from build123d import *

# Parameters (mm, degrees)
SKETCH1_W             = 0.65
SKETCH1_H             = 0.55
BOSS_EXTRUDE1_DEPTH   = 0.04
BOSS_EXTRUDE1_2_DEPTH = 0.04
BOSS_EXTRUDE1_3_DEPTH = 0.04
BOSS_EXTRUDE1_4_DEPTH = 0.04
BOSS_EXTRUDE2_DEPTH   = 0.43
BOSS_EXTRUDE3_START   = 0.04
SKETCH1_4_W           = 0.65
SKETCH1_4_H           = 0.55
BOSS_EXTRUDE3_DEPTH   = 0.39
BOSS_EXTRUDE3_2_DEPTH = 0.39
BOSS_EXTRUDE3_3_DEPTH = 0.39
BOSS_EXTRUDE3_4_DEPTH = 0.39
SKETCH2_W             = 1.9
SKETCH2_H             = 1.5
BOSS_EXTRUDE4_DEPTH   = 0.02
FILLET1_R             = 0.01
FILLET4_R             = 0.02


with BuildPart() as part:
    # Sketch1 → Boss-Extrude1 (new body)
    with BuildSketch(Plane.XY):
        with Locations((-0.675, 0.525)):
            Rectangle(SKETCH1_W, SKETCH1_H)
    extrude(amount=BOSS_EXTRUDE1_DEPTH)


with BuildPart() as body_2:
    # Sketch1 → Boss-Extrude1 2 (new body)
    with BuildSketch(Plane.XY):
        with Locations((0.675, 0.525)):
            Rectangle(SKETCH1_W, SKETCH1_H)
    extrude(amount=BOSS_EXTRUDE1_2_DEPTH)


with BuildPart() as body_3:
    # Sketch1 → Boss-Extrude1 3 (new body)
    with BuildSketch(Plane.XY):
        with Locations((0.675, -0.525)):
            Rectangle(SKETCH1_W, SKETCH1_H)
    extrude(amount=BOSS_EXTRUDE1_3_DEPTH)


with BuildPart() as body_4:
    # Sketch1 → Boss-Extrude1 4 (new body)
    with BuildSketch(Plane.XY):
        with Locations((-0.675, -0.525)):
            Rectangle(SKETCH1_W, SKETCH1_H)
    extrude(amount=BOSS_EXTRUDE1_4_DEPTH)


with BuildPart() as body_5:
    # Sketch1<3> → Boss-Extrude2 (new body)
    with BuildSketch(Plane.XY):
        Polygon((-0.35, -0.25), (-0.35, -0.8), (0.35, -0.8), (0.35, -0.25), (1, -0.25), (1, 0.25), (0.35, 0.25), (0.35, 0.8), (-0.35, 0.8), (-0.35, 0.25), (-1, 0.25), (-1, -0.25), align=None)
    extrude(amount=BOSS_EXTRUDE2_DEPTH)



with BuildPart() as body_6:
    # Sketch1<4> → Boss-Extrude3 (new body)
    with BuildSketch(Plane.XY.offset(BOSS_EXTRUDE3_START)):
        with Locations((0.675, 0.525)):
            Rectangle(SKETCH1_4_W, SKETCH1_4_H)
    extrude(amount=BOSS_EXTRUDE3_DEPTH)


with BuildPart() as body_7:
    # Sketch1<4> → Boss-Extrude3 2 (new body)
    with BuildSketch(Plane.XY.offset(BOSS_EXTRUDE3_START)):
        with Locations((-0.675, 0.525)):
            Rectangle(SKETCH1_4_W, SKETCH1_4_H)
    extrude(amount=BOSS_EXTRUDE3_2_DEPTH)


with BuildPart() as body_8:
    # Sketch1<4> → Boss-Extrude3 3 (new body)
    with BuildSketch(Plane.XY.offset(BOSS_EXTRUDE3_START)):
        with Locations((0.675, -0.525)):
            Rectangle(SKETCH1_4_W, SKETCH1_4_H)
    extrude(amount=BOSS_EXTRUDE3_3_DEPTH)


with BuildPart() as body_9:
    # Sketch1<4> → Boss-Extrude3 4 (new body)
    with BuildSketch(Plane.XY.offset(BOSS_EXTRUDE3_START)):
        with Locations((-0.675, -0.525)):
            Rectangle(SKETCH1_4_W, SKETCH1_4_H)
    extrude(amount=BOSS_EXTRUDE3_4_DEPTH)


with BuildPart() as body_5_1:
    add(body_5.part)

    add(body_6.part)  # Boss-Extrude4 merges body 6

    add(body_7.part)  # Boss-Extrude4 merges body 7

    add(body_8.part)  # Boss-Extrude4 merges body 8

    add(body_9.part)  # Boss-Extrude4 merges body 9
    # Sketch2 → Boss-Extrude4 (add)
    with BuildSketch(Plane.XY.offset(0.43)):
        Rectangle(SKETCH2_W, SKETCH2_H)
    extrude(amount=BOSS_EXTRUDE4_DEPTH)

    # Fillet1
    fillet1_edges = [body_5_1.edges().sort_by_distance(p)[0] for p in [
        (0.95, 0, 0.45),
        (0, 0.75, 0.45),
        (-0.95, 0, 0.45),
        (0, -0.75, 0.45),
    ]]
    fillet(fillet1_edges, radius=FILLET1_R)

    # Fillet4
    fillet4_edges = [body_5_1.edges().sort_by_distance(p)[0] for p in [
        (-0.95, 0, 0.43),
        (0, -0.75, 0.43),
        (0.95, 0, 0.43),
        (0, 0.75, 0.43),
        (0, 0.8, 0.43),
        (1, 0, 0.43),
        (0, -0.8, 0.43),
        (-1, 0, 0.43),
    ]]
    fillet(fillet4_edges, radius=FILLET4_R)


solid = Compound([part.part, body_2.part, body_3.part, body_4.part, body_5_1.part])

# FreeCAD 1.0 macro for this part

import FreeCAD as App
import Part
import Sketcher

V = App.Vector
Q = App.Units.Quantity


def edges_at(feature, points):
    """Names of the edges that pass closest to the given points."""
    edges = feature.Shape.Edges
    near = lambda p: min(range(len(edges)), key=lambda i: edges[i].distToShape(Part.Vertex(*p))[0])
    return sorted({f"Edge{near(p) + 1}" for p in points})

doc = App.newDocument("Part")
body = doc.addObject("PartDesign::Body", "Body")

# Sketch on XY plane
sketch1 = body.newObject("Sketcher::SketchObject", "Sketch")
sketch1.AttachmentSupport = (doc.getObject("XY_Plane"), [""])
sketch1.MapMode = "FlatFace"
sketch1.addGeometry([
    Part.LineSegment(V(-1, 0.8, 0), V(-1, 0.2, 0)),
    Part.LineSegment(V(-1, 0.2, 0), V(-0.3, 0.2, 0)),
    Part.LineSegment(V(-0.3, 0.2, 0), V(-0.3, 0.8, 0)),
    Part.LineSegment(V(-0.3, 0.8, 0), V(-1, 0.8, 0)),
], False)
sketch1.addConstraint([
    Sketcher.Constraint("Coincident", 0, 2, 1, 1),
    Sketcher.Constraint("Coincident", 1, 2, 2, 1),
    Sketcher.Constraint("Coincident", 2, 2, 3, 1),
    Sketcher.Constraint("Coincident", 3, 2, 0, 1),
    Sketcher.Constraint("Vertical", 0),
    Sketcher.Constraint("Horizontal", 1),
    Sketcher.Constraint("Vertical", 2),
    Sketcher.Constraint("Horizontal", 3),
    Sketcher.Constraint("DistanceX", 0, 2, -1, 1, Q("1 mm")),
    Sketcher.Constraint("DistanceX", 1, 1, 1, 2, Q("0.65 mm")),
    Sketcher.Constraint("DistanceY", 0, 2, 0, 1, Q("0.55 mm")),
    Sketcher.Constraint("DistanceY", -1, 1, 2, 2, Q("0.8 mm")),
])
pad1 = body.newObject("PartDesign::Pad", "Pad")
pad1.Profile = sketch1
pad1.Length = 0.04
body2 = doc.addObject("PartDesign::Body", "Body001")

# Sketch on XY plane
sketch2 = body2.newObject("Sketcher::SketchObject", "Sketch001")
sketch2.AttachmentSupport = (doc.getObject("XY_Plane001"), [""])
sketch2.MapMode = "FlatFace"
sketch2.addGeometry([
    Part.LineSegment(V(0.3, 0.8, 0), V(0.3, 0.2, 0)),
    Part.LineSegment(V(0.3, 0.2, 0), V(1, 0.2, 0)),
    Part.LineSegment(V(1, 0.2, 0), V(1, 0.8, 0)),
    Part.LineSegment(V(1, 0.8, 0), V(0.3, 0.8, 0)),
], False)
sketch2.addConstraint([
    Sketcher.Constraint("Coincident", 0, 2, 1, 1),
    Sketcher.Constraint("Coincident", 1, 2, 2, 1),
    Sketcher.Constraint("Coincident", 2, 2, 3, 1),
    Sketcher.Constraint("Coincident", 3, 2, 0, 1),
    Sketcher.Constraint("Vertical", 0),
    Sketcher.Constraint("Horizontal", 1),
    Sketcher.Constraint("Vertical", 2),
    Sketcher.Constraint("Horizontal", 3),
    Sketcher.Constraint("DistanceX", -1, 1, 1, 2, Q("1 mm")),
    Sketcher.Constraint("DistanceX", 1, 1, 1, 2, Q("0.65 mm")),
    Sketcher.Constraint("DistanceY", 0, 2, 0, 1, Q("0.55 mm")),
    Sketcher.Constraint("DistanceY", -1, 1, 2, 2, Q("0.8 mm")),
])
pad2 = body2.newObject("PartDesign::Pad", "Pad001")
pad2.Profile = sketch2
pad2.Length = 0.04
body3 = doc.addObject("PartDesign::Body", "Body002")

# Sketch on XY plane
sketch3 = body3.newObject("Sketcher::SketchObject", "Sketch002")
sketch3.AttachmentSupport = (doc.getObject("XY_Plane002"), [""])
sketch3.MapMode = "FlatFace"
sketch3.addGeometry([
    Part.LineSegment(V(0.3, -0.2, 0), V(0.3, -0.8, 0)),
    Part.LineSegment(V(0.3, -0.8, 0), V(1, -0.8, 0)),
    Part.LineSegment(V(1, -0.8, 0), V(1, -0.2, 0)),
    Part.LineSegment(V(1, -0.2, 0), V(0.3, -0.2, 0)),
], False)
sketch3.addConstraint([
    Sketcher.Constraint("Coincident", 0, 2, 1, 1),
    Sketcher.Constraint("Coincident", 1, 2, 2, 1),
    Sketcher.Constraint("Coincident", 2, 2, 3, 1),
    Sketcher.Constraint("Coincident", 3, 2, 0, 1),
    Sketcher.Constraint("Vertical", 0),
    Sketcher.Constraint("Horizontal", 1),
    Sketcher.Constraint("Vertical", 2),
    Sketcher.Constraint("Horizontal", 3),
    Sketcher.Constraint("DistanceX", -1, 1, 1, 2, Q("1 mm")),
    Sketcher.Constraint("DistanceX", 1, 1, 1, 2, Q("0.65 mm")),
    Sketcher.Constraint("DistanceY", 0, 2, 0, 1, Q("0.55 mm")),
    Sketcher.Constraint("DistanceY", 0, 2, -1, 1, Q("0.8 mm")),
])
pad3 = body3.newObject("PartDesign::Pad", "Pad002")
pad3.Profile = sketch3
pad3.Length = 0.04
body4 = doc.addObject("PartDesign::Body", "Body003")

# Sketch on XY plane
sketch4 = body4.newObject("Sketcher::SketchObject", "Sketch003")
sketch4.AttachmentSupport = (doc.getObject("XY_Plane003"), [""])
sketch4.MapMode = "FlatFace"
sketch4.addGeometry([
    Part.LineSegment(V(-1, -0.2, 0), V(-1, -0.8, 0)),
    Part.LineSegment(V(-1, -0.8, 0), V(-0.3, -0.8, 0)),
    Part.LineSegment(V(-0.3, -0.8, 0), V(-0.3, -0.2, 0)),
    Part.LineSegment(V(-0.3, -0.2, 0), V(-1, -0.2, 0)),
], False)
sketch4.addConstraint([
    Sketcher.Constraint("Coincident", 0, 2, 1, 1),
    Sketcher.Constraint("Coincident", 1, 2, 2, 1),
    Sketcher.Constraint("Coincident", 2, 2, 3, 1),
    Sketcher.Constraint("Coincident", 3, 2, 0, 1),
    Sketcher.Constraint("Vertical", 0),
    Sketcher.Constraint("Horizontal", 1),
    Sketcher.Constraint("Vertical", 2),
    Sketcher.Constraint("Horizontal", 3),
    Sketcher.Constraint("DistanceX", 0, 2, -1, 1, Q("1 mm")),
    Sketcher.Constraint("DistanceX", 1, 1, 1, 2, Q("0.65 mm")),
    Sketcher.Constraint("DistanceY", 0, 2, 0, 1, Q("0.55 mm")),
    Sketcher.Constraint("DistanceY", 0, 2, -1, 1, Q("0.8 mm")),
])
pad4 = body4.newObject("PartDesign::Pad", "Pad003")
pad4.Profile = sketch4
pad4.Length = 0.04
body5 = doc.addObject("PartDesign::Body", "Body004")

# Sketch on XY plane
sketch5 = body5.newObject("Sketcher::SketchObject", "Sketch004")
sketch5.AttachmentSupport = (doc.getObject("XY_Plane004"), [""])
sketch5.MapMode = "FlatFace"
sketch5.addGeometry([
    Part.LineSegment(V(-0.3, -0.2, 0), V(-0.3, -0.8, 0)),  # 0
    Part.LineSegment(V(-0.3, -0.8, 0), V(0.3, -0.8, 0)),  # 1
    Part.LineSegment(V(0.3, -0.8, 0), V(0.3, -0.2, 0)),  # 2
    Part.LineSegment(V(0.3, -0.2, 0), V(1, -0.2, 0)),  # 3
    Part.LineSegment(V(1, -0.2, 0), V(1, 0.2, 0)),  # 4
    Part.LineSegment(V(1, 0.2, 0), V(0.3, 0.2, 0)),  # 5
    Part.LineSegment(V(0.3, 0.2, 0), V(0.3, 0.8, 0)),  # 6
    Part.LineSegment(V(0.3, 0.8, 0), V(-0.3, 0.8, 0)),  # 7
    Part.LineSegment(V(-0.3, 0.8, 0), V(-0.3, 0.2, 0)),  # 8
    Part.LineSegment(V(-0.3, 0.2, 0), V(-1, 0.2, 0)),  # 9
    Part.LineSegment(V(-1, 0.2, 0), V(-1, -0.2, 0)),  # 10
    Part.LineSegment(V(-1, -0.2, 0), V(-0.3, -0.2, 0)),  # 11
], False)
sketch5.addConstraint([
    Sketcher.Constraint("Coincident", 0, 2, 1, 1),
    Sketcher.Constraint("Coincident", 1, 2, 2, 1),
    Sketcher.Constraint("Coincident", 2, 2, 3, 1),
    Sketcher.Constraint("Coincident", 3, 2, 4, 1),
    Sketcher.Constraint("Coincident", 4, 2, 5, 1),
    Sketcher.Constraint("Coincident", 5, 2, 6, 1),
    Sketcher.Constraint("Coincident", 6, 2, 7, 1),
    Sketcher.Constraint("Coincident", 7, 2, 8, 1),
    Sketcher.Constraint("Coincident", 8, 2, 9, 1),
    Sketcher.Constraint("Coincident", 9, 2, 10, 1),
    Sketcher.Constraint("Coincident", 10, 2, 11, 1),
    Sketcher.Constraint("Coincident", 11, 2, 0, 1),
    Sketcher.Constraint("Vertical", 0),
    Sketcher.Constraint("Horizontal", 1),
    Sketcher.Constraint("Vertical", 2),
    Sketcher.Constraint("Horizontal", 3),
    Sketcher.Constraint("Vertical", 4),
    Sketcher.Constraint("Horizontal", 5),
    Sketcher.Constraint("Vertical", 6),
    Sketcher.Constraint("Horizontal", 7),
    Sketcher.Constraint("Vertical", 8),
    Sketcher.Constraint("Horizontal", 9),
    Sketcher.Constraint("Vertical", 10),
    Sketcher.Constraint("Horizontal", 11),
    Sketcher.Constraint("Symmetric", 0, 2, 6, 2, -1, 1),
    Sketcher.Constraint("Symmetric", 2, 2, 8, 2, -1, 1),
    Sketcher.Constraint("Symmetric", 4, 2, 10, 2, -1, 1),
    Sketcher.Constraint("Symmetric", 5, 2, 8, 2, -2),
    Sketcher.Constraint("DistanceX", 1, 1, 1, 2, Q("0.7 mm")),
    Sketcher.Constraint("DistanceY", 4, 1, 4, 2, Q("0.5 mm")),
    Sketcher.Constraint("DistanceX", -1, 1, 3, 2, Q("1 mm")),
    Sketcher.Constraint("DistanceY", 0, 2, 0, 1, Q("0.55 mm")),
])
pad5 = body5.newObject("PartDesign::Pad", "Pad004")
pad5.Profile = sketch5
pad5.Length = 0.43
body6 = doc.addObject("PartDesign::Body", "Body005")

# Sketch on XY plane
sketch6 = body6.newObject("Sketcher::SketchObject", "Sketch005")
sketch6.AttachmentSupport = (doc.getObject("XY_Plane005"), [""])
sketch6.MapMode = "FlatFace"
sketch6.AttachmentOffset = App.Placement(V(0, 0, 0.04), App.Rotation())
sketch6.addGeometry([
    Part.LineSegment(V(0.3, 0.8, 0), V(0.3, 0.2, 0)),
    Part.LineSegment(V(0.3, 0.2, 0), V(1, 0.2, 0)),
    Part.LineSegment(V(1, 0.2, 0), V(1, 0.8, 0)),
    Part.LineSegment(V(1, 0.8, 0), V(0.3, 0.8, 0)),
], False)
sketch6.addConstraint([
    Sketcher.Constraint("Coincident", 0, 2, 1, 1),
    Sketcher.Constraint("Coincident", 1, 2, 2, 1),
    Sketcher.Constraint("Coincident", 2, 2, 3, 1),
    Sketcher.Constraint("Coincident", 3, 2, 0, 1),
    Sketcher.Constraint("Vertical", 0),
    Sketcher.Constraint("Horizontal", 1),
    Sketcher.Constraint("Vertical", 2),
    Sketcher.Constraint("Horizontal", 3),
    Sketcher.Constraint("DistanceX", -1, 1, 1, 2, Q("1 mm")),
    Sketcher.Constraint("DistanceX", 1, 1, 1, 2, Q("0.65 mm")),
    Sketcher.Constraint("DistanceY", 0, 2, 0, 1, Q("0.55 mm")),
    Sketcher.Constraint("DistanceY", -1, 1, 2, 2, Q("0.8 mm")),
])
pad6 = body6.newObject("PartDesign::Pad", "Pad005")
pad6.Profile = sketch6
pad6.Length = 0.39
body7 = doc.addObject("PartDesign::Body", "Body006")

# Sketch on XY plane
sketch7 = body7.newObject("Sketcher::SketchObject", "Sketch006")
sketch7.AttachmentSupport = (doc.getObject("XY_Plane006"), [""])
sketch7.MapMode = "FlatFace"
sketch7.AttachmentOffset = App.Placement(V(0, 0, 0.04), App.Rotation())
sketch7.addGeometry([
    Part.LineSegment(V(-1, 0.8, 0), V(-1, 0.2, 0)),
    Part.LineSegment(V(-1, 0.2, 0), V(-0.3, 0.2, 0)),
    Part.LineSegment(V(-0.3, 0.2, 0), V(-0.3, 0.8, 0)),
    Part.LineSegment(V(-0.3, 0.8, 0), V(-1, 0.8, 0)),
], False)
sketch7.addConstraint([
    Sketcher.Constraint("Coincident", 0, 2, 1, 1),
    Sketcher.Constraint("Coincident", 1, 2, 2, 1),
    Sketcher.Constraint("Coincident", 2, 2, 3, 1),
    Sketcher.Constraint("Coincident", 3, 2, 0, 1),
    Sketcher.Constraint("Vertical", 0),
    Sketcher.Constraint("Horizontal", 1),
    Sketcher.Constraint("Vertical", 2),
    Sketcher.Constraint("Horizontal", 3),
    Sketcher.Constraint("DistanceX", 0, 2, -1, 1, Q("1 mm")),
    Sketcher.Constraint("DistanceX", 1, 1, 1, 2, Q("0.65 mm")),
    Sketcher.Constraint("DistanceY", 0, 2, 0, 1, Q("0.55 mm")),
    Sketcher.Constraint("DistanceY", -1, 1, 2, 2, Q("0.8 mm")),
])
pad7 = body7.newObject("PartDesign::Pad", "Pad006")
pad7.Profile = sketch7
pad7.Length = 0.39
body8 = doc.addObject("PartDesign::Body", "Body007")

# Sketch on XY plane
sketch8 = body8.newObject("Sketcher::SketchObject", "Sketch007")
sketch8.AttachmentSupport = (doc.getObject("XY_Plane007"), [""])
sketch8.MapMode = "FlatFace"
sketch8.AttachmentOffset = App.Placement(V(0, 0, 0.04), App.Rotation())
sketch8.addGeometry([
    Part.LineSegment(V(0.3, -0.2, 0), V(0.3, -0.8, 0)),
    Part.LineSegment(V(0.3, -0.8, 0), V(1, -0.8, 0)),
    Part.LineSegment(V(1, -0.8, 0), V(1, -0.2, 0)),
    Part.LineSegment(V(1, -0.2, 0), V(0.3, -0.2, 0)),
], False)
sketch8.addConstraint([
    Sketcher.Constraint("Coincident", 0, 2, 1, 1),
    Sketcher.Constraint("Coincident", 1, 2, 2, 1),
    Sketcher.Constraint("Coincident", 2, 2, 3, 1),
    Sketcher.Constraint("Coincident", 3, 2, 0, 1),
    Sketcher.Constraint("Vertical", 0),
    Sketcher.Constraint("Horizontal", 1),
    Sketcher.Constraint("Vertical", 2),
    Sketcher.Constraint("Horizontal", 3),
    Sketcher.Constraint("DistanceX", -1, 1, 1, 2, Q("1 mm")),
    Sketcher.Constraint("DistanceX", 1, 1, 1, 2, Q("0.65 mm")),
    Sketcher.Constraint("DistanceY", 0, 2, 0, 1, Q("0.55 mm")),
    Sketcher.Constraint("DistanceY", 0, 2, -1, 1, Q("0.8 mm")),
])
pad8 = body8.newObject("PartDesign::Pad", "Pad007")
pad8.Profile = sketch8
pad8.Length = 0.39
body9 = doc.addObject("PartDesign::Body", "Body008")

# Sketch on XY plane
sketch9 = body9.newObject("Sketcher::SketchObject", "Sketch008")
sketch9.AttachmentSupport = (doc.getObject("XY_Plane008"), [""])
sketch9.MapMode = "FlatFace"
sketch9.AttachmentOffset = App.Placement(V(0, 0, 0.04), App.Rotation())
sketch9.addGeometry([
    Part.LineSegment(V(-1, -0.2, 0), V(-1, -0.8, 0)),
    Part.LineSegment(V(-1, -0.8, 0), V(-0.3, -0.8, 0)),
    Part.LineSegment(V(-0.3, -0.8, 0), V(-0.3, -0.2, 0)),
    Part.LineSegment(V(-0.3, -0.2, 0), V(-1, -0.2, 0)),
], False)
sketch9.addConstraint([
    Sketcher.Constraint("Coincident", 0, 2, 1, 1),
    Sketcher.Constraint("Coincident", 1, 2, 2, 1),
    Sketcher.Constraint("Coincident", 2, 2, 3, 1),
    Sketcher.Constraint("Coincident", 3, 2, 0, 1),
    Sketcher.Constraint("Vertical", 0),
    Sketcher.Constraint("Horizontal", 1),
    Sketcher.Constraint("Vertical", 2),
    Sketcher.Constraint("Horizontal", 3),
    Sketcher.Constraint("DistanceX", 0, 2, -1, 1, Q("1 mm")),
    Sketcher.Constraint("DistanceX", 1, 1, 1, 2, Q("0.65 mm")),
    Sketcher.Constraint("DistanceY", 0, 2, 0, 1, Q("0.55 mm")),
    Sketcher.Constraint("DistanceY", 0, 2, -1, 1, Q("0.8 mm")),
])
pad9 = body9.newObject("PartDesign::Pad", "Pad008")
pad9.Profile = sketch9
pad9.Length = 0.39
doc.recompute()

boolean = body5.newObject("PartDesign::Boolean", "Boolean")
boolean.Type = "Fuse"
boolean.addObjects([body6])
doc.recompute()

boolean2 = body5.newObject("PartDesign::Boolean", "Boolean001")
boolean2.Type = "Fuse"
boolean2.addObjects([body7])
doc.recompute()

boolean3 = body5.newObject("PartDesign::Boolean", "Boolean002")
boolean3.Type = "Fuse"
boolean3.addObjects([body8])
doc.recompute()

boolean4 = body5.newObject("PartDesign::Boolean", "Boolean003")
boolean4.Type = "Fuse"
boolean4.addObjects([body9])

# Sketch on XY plane
sketch10 = body5.newObject("Sketcher::SketchObject", "Sketch009")
sketch10.AttachmentSupport = (doc.getObject("XY_Plane004"), [""])
sketch10.MapMode = "FlatFace"
sketch10.AttachmentOffset = App.Placement(V(0, 0, 0.43), App.Rotation())
sketch10.addGeometry([
    Part.LineSegment(V(-0.9, 0.8, 0), V(-0.9, -0.8, 0)),
    Part.LineSegment(V(-0.9, -0.8, 0), V(0.9, -0.8, 0)),
    Part.LineSegment(V(0.9, -0.8, 0), V(0.9, 0.8, 0)),
    Part.LineSegment(V(0.9, 0.8, 0), V(-0.9, 0.8, 0)),
], False)
sketch10.addConstraint([
    Sketcher.Constraint("Coincident", 0, 2, 1, 1),
    Sketcher.Constraint("Coincident", 1, 2, 2, 1),
    Sketcher.Constraint("Coincident", 2, 2, 3, 1),
    Sketcher.Constraint("Coincident", 3, 2, 0, 1),
    Sketcher.Constraint("Vertical", 0),
    Sketcher.Constraint("Horizontal", 1),
    Sketcher.Constraint("Vertical", 2),
    Sketcher.Constraint("Horizontal", 3),
    Sketcher.Constraint("Symmetric", 0, 2, 2, 2, -1, 1),
    Sketcher.Constraint("DistanceX", 1, 1, 1, 2, Q("1.9 mm")),
    Sketcher.Constraint("DistanceY", 0, 2, 0, 1, Q("1.5 mm")),
])
pad10 = body5.newObject("PartDesign::Pad", "Pad009")
pad10.Profile = sketch10
pad10.Length = 0.02
doc.recompute()

fillet = body5.newObject("PartDesign::Fillet", "Fillet")
fillet.Base = (pad10, edges_at(pad10, [
    (0.95, 0, 0.45),
    (0, 0.75, 0.45),
    (-0.95, 0, 0.45),
    (0, -0.75, 0.45),
]))
fillet.Radius = 0.01
doc.recompute()

fillet2 = body5.newObject("PartDesign::Fillet", "Fillet001")
fillet2.Base = (fillet, edges_at(fillet, [
    (-0.95, 0, 0.43),
    (0, -0.75, 0.43),
    (0.95, 0, 0.43),
    (0, 0.75, 0.43),
    (0, 0.8, 0.43),
    (1, 0, 0.43),
    (0, -0.8, 0.43),
    (-1, 0, 0.43),
]))
fillet2.Radius = 0.02

doc.recompute()
